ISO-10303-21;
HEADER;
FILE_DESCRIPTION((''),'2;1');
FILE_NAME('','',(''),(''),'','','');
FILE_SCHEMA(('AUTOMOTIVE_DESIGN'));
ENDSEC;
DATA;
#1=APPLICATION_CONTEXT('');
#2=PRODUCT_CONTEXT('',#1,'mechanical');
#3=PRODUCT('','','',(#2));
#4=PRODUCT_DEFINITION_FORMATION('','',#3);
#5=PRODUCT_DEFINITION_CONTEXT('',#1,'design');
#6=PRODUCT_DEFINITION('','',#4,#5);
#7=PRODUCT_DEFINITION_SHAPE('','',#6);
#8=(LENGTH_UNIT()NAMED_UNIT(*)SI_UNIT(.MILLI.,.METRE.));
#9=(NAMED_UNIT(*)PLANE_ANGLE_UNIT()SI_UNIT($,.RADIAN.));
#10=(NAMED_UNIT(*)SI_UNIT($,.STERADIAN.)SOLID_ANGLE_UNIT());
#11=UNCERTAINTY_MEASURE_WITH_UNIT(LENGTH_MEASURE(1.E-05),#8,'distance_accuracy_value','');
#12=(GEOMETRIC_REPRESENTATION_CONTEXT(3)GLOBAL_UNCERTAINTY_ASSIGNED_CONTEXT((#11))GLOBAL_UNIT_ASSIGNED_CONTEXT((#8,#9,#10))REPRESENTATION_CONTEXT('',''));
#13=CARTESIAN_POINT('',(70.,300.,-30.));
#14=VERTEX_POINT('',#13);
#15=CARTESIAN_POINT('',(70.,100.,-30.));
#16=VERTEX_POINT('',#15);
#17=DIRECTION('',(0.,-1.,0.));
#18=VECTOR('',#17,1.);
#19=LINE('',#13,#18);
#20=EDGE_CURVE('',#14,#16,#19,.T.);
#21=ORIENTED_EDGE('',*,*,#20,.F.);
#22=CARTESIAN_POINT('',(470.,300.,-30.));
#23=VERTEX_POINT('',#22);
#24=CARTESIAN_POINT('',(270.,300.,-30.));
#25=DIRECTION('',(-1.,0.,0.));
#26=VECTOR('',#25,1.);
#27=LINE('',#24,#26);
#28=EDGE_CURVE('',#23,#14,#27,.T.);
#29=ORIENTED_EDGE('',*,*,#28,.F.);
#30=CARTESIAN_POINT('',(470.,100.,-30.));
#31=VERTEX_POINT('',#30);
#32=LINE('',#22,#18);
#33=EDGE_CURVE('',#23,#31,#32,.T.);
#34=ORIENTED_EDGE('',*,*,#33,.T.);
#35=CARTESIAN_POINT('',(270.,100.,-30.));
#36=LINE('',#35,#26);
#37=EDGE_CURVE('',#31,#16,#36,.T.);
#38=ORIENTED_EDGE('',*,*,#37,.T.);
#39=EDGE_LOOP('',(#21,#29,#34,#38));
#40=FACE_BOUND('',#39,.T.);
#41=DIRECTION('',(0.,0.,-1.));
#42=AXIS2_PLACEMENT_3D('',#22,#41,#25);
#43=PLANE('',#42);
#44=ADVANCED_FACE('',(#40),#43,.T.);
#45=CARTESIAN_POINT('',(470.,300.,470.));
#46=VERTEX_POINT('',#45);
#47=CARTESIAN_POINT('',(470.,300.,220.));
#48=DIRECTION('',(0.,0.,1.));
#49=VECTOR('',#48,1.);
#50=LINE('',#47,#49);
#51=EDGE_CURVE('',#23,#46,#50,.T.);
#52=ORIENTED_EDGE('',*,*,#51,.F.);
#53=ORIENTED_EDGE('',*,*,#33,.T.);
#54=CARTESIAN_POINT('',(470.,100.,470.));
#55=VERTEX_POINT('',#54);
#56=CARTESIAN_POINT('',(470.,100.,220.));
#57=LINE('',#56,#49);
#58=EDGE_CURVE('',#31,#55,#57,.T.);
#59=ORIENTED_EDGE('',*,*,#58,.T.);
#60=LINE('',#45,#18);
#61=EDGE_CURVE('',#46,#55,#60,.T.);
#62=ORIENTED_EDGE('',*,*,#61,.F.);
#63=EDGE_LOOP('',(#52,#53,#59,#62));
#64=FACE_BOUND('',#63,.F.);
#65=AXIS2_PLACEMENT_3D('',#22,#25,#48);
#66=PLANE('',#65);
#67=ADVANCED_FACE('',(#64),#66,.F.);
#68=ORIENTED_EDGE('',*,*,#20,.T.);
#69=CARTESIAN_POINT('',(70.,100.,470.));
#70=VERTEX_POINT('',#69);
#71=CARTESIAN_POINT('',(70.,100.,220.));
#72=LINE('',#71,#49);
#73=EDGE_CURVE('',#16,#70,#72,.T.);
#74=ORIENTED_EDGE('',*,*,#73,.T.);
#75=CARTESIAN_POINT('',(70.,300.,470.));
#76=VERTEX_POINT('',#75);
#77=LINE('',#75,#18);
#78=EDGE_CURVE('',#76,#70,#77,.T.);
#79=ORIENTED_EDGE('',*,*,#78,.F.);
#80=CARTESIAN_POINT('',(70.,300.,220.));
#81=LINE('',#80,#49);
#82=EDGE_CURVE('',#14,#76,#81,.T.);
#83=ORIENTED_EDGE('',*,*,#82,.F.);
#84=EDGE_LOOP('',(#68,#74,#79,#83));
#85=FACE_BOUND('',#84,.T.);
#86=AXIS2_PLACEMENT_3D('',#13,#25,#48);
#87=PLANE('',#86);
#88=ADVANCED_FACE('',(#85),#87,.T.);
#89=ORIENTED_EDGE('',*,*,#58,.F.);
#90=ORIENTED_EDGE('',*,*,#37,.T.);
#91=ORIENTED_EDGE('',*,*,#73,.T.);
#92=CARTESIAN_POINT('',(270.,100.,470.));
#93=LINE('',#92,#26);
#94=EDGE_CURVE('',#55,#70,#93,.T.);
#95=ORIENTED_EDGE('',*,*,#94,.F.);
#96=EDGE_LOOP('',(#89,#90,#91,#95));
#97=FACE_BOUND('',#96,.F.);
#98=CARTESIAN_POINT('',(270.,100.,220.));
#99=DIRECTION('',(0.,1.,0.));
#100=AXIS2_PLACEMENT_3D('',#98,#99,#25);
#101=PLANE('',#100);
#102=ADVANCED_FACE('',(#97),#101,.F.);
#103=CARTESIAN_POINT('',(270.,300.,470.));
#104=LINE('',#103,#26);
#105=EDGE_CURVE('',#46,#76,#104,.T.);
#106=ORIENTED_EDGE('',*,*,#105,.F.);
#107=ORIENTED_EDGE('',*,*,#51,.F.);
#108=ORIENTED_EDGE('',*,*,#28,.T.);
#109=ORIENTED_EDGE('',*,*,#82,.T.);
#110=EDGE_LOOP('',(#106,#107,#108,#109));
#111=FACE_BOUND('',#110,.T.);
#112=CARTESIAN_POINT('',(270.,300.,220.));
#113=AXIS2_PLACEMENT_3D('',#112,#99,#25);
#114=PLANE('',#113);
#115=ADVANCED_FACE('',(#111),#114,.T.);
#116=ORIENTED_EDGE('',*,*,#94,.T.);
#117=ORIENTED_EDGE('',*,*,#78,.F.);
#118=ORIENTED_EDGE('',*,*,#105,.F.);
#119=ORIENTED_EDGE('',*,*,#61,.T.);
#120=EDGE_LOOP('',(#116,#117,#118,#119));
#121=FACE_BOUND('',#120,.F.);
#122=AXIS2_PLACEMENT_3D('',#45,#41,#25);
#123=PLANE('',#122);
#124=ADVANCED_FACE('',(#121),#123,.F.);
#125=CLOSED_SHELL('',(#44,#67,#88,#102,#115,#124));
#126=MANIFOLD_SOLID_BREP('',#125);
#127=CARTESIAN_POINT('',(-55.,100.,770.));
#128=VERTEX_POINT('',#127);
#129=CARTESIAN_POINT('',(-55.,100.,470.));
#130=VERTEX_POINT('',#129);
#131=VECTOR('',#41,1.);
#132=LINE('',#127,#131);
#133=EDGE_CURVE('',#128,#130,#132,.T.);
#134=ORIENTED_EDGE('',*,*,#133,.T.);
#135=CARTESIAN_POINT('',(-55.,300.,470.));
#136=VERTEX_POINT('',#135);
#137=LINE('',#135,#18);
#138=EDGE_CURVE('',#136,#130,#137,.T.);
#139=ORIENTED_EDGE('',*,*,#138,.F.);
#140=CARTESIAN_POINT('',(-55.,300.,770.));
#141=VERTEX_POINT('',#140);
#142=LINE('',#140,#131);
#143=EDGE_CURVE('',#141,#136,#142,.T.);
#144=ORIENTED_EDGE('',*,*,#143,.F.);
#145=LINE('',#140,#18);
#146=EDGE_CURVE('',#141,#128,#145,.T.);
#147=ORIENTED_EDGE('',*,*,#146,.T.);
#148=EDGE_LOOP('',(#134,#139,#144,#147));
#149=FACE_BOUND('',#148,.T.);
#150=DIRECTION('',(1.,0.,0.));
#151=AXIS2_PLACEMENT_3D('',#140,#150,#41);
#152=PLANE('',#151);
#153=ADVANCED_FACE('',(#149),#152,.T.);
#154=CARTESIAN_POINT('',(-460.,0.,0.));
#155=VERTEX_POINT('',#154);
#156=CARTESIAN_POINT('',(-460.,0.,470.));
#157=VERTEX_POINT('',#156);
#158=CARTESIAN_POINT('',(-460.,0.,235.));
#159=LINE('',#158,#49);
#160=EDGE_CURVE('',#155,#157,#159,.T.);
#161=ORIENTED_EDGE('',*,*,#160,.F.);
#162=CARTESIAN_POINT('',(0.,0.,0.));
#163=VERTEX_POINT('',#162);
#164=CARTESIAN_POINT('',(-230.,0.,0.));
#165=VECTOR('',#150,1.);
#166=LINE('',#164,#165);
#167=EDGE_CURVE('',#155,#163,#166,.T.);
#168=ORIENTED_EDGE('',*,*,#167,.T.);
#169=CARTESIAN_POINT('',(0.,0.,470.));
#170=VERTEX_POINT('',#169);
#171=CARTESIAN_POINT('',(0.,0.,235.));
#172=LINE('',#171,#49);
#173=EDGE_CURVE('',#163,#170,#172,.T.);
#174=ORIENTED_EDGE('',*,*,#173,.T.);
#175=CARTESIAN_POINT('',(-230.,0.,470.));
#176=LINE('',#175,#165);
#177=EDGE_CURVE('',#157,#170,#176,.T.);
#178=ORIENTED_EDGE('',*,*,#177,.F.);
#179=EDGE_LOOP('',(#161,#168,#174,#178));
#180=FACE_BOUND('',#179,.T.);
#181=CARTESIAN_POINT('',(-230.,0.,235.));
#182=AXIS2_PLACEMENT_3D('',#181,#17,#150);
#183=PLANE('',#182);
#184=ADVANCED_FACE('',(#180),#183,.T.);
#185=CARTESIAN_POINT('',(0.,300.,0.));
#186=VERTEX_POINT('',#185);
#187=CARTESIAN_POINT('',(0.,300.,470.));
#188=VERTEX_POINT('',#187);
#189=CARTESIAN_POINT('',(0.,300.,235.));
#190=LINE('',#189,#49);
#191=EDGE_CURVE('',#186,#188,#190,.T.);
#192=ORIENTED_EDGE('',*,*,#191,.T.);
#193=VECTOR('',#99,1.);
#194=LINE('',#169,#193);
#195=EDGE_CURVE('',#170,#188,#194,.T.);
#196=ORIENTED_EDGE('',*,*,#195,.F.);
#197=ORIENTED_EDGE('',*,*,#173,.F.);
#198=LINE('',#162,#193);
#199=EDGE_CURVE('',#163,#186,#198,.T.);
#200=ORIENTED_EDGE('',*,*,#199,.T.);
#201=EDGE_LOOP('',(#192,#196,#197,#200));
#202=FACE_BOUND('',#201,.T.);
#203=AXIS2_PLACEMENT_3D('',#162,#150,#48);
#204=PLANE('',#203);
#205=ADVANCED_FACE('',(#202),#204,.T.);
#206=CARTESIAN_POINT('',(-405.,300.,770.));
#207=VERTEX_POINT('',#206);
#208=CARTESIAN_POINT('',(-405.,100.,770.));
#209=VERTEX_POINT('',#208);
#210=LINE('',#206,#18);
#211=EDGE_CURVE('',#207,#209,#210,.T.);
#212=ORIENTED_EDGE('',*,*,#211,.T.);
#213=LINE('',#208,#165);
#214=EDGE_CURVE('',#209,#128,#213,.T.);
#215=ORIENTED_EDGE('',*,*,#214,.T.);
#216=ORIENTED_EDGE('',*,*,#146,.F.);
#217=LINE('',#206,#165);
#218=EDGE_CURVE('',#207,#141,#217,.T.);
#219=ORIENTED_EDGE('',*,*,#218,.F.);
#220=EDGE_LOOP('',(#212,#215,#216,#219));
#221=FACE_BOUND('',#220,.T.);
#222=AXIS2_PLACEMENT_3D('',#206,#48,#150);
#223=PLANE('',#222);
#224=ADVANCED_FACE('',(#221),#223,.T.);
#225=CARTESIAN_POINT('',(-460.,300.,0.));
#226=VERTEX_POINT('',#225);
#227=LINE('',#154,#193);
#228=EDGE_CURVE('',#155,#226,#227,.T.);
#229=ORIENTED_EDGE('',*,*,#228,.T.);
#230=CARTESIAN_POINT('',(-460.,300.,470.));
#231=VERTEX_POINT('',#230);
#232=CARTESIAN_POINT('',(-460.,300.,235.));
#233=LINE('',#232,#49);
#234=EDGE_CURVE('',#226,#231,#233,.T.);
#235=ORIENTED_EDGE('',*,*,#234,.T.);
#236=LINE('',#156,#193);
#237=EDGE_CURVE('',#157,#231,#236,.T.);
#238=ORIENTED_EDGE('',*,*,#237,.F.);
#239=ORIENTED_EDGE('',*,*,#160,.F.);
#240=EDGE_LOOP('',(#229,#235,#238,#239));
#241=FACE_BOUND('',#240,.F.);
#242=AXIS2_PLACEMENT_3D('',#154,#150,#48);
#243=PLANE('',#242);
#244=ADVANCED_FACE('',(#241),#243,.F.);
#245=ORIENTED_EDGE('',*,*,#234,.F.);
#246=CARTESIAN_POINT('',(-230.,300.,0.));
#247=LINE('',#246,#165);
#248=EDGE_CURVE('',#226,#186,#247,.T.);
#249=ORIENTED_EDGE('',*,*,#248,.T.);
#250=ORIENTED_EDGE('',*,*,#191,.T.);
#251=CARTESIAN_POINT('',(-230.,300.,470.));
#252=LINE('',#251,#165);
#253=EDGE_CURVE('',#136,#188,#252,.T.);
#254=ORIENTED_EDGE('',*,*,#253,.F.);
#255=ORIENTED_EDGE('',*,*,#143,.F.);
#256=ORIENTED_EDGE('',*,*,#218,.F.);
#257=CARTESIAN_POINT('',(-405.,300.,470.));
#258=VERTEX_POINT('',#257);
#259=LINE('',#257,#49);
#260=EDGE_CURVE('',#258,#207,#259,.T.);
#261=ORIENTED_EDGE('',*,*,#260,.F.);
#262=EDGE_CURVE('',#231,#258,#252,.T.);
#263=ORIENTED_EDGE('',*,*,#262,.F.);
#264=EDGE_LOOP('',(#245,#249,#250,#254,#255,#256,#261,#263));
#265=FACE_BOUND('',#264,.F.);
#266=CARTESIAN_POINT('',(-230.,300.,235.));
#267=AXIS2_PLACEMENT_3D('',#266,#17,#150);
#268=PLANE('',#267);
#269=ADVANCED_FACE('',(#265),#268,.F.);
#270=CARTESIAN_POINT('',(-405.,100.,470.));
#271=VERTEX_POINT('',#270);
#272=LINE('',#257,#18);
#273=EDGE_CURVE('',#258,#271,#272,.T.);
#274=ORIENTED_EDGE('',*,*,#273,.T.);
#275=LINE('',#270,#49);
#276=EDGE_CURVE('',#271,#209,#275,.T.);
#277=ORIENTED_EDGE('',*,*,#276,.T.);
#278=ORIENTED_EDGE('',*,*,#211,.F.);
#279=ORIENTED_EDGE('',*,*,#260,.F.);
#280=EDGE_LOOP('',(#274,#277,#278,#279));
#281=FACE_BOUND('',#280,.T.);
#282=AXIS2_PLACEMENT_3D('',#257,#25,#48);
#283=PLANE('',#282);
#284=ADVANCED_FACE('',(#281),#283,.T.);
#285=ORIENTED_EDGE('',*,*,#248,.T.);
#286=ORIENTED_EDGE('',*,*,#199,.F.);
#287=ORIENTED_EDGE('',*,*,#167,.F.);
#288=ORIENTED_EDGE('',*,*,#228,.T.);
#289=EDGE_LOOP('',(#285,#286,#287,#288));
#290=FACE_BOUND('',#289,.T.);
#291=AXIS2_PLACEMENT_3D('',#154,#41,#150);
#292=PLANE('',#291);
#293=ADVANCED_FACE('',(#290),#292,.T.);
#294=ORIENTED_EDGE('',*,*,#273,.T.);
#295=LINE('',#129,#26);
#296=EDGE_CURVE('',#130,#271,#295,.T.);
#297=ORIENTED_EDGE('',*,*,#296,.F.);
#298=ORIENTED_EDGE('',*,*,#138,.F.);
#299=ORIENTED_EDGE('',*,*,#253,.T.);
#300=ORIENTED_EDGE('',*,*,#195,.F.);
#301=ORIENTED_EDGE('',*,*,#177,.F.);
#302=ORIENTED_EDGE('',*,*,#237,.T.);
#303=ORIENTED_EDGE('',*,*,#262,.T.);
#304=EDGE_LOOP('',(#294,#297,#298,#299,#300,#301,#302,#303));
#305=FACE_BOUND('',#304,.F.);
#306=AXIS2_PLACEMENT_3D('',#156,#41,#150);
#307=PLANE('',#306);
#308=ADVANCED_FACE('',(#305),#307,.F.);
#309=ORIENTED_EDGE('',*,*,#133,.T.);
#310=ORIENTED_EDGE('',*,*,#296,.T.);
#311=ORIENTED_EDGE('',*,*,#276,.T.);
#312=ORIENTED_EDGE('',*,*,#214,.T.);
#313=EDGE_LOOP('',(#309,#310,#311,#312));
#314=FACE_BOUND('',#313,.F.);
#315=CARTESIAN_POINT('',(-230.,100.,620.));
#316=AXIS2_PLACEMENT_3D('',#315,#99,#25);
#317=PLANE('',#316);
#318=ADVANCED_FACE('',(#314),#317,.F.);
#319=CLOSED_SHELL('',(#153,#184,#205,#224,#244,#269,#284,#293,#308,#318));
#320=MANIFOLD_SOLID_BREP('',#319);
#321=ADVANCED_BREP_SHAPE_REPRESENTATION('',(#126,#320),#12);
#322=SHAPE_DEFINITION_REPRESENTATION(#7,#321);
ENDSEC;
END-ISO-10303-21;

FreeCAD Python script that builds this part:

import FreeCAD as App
import Part
import Sketcher
Q = App.Units.Quantity


def add_polygon(sketch, points):
    """Adds a closed chain of lines whose ends are joined by coincident constraints."""
    first, n = sketch.GeometryCount, len(points)
    for a, b in zip(points, points[1:] + points[:1]):
        sketch.addGeometry(Part.LineSegment(App.Vector(*a, 0), App.Vector(*b, 0)), False)
    for i in range(n):
        sketch.addConstraint(Sketcher.Constraint("Coincident", first + i, 2, first + (i + 1) % n, 1))

doc = App.newDocument("Part")
body = doc.addObject("PartDesign::Body", "Body")
body.AllowCompound = True

sketch1 = body.newObject("Sketcher::SketchObject", "Sketch")
sketch1.AttachmentSupport = (doc.getObject("XZ_Plane"), [""])
sketch1.MapMode = "FlatFace"
add_polygon(sketch1, [(-460, 470), (-460, 0), (0, 0), (0, 470)])
sketch1.addConstraint(Sketcher.Constraint("Vertical", 0))
sketch1.addConstraint(Sketcher.Constraint("Horizontal", 1))
sketch1.addConstraint(Sketcher.Constraint("Vertical", 2))
sketch1.addConstraint(Sketcher.Constraint("Horizontal", 3))
sketch1.addConstraint(Sketcher.Constraint("Coincident", 1, 2, -1, 1))
sketch1.addConstraint(Sketcher.Constraint("DistanceX", 1, 1, 1, 2, Q("460 mm")))
sketch1.addConstraint(Sketcher.Constraint("DistanceY", 0, 2, 0, 1, Q("470 mm")))
pad1 = body.newObject("PartDesign::Pad", "Pad")
pad1.Profile = sketch1
pad1.Length = 300
pad1.Reversed = True

sketch2 = body.newObject("Sketcher::SketchObject", "Sketch001")
sketch2.AttachmentSupport = (doc.getObject("XZ_Plane"), [""])
sketch2.MapMode = "FlatFace"
sketch2.AttachmentOffset = App.Placement(App.Vector(0, 0, -300), App.Rotation())
add_polygon(sketch2, [(-55, 470), (-405, 470), (-405, 770), (-55, 770)])
add_polygon(sketch2, [(470, 470), (470, -30), (70, -30), (70, 470)])
sketch2.addConstraint(Sketcher.Constraint("Horizontal", 0))
sketch2.addConstraint(Sketcher.Constraint("Vertical", 1))
sketch2.addConstraint(Sketcher.Constraint("Horizontal", 2))
sketch2.addConstraint(Sketcher.Constraint("Vertical", 3))
sketch2.addConstraint(Sketcher.Constraint("Vertical", 4))
sketch2.addConstraint(Sketcher.Constraint("Horizontal", 5))
sketch2.addConstraint(Sketcher.Constraint("Vertical", 6))
sketch2.addConstraint(Sketcher.Constraint("Horizontal", 7))
sketch2.addConstraint(Sketcher.Constraint("Horizontal", 3, 2, 6, 2))
sketch2.addConstraint(Sketcher.Constraint("DistanceX", 0, 2, 0, 1, Q("350 mm")))
sketch2.addConstraint(Sketcher.Constraint("DistanceX", 5, 2, 5, 1, Q("400 mm")))
sketch2.addConstraint(Sketcher.Constraint("DistanceY", 1, 1, 1, 2, Q("300 mm")))
sketch2.addConstraint(Sketcher.Constraint("DistanceY", 4, 2, 4, 1, Q("500 mm")))
sketch2.addConstraint(Sketcher.Constraint("DistanceX", 0, 2, -1, 1, Q("405 mm")))
sketch2.addConstraint(Sketcher.Constraint("DistanceY", -1, 1, 0, 2, Q("470 mm")))
sketch2.addConstraint(Sketcher.Constraint("DistanceX", -1, 1, 4, 2, Q("470 mm")))
pad2 = body.newObject("PartDesign::Pad", "Pad001")
pad2.Profile = sketch2
pad2.Length = 200

doc.recompute()
